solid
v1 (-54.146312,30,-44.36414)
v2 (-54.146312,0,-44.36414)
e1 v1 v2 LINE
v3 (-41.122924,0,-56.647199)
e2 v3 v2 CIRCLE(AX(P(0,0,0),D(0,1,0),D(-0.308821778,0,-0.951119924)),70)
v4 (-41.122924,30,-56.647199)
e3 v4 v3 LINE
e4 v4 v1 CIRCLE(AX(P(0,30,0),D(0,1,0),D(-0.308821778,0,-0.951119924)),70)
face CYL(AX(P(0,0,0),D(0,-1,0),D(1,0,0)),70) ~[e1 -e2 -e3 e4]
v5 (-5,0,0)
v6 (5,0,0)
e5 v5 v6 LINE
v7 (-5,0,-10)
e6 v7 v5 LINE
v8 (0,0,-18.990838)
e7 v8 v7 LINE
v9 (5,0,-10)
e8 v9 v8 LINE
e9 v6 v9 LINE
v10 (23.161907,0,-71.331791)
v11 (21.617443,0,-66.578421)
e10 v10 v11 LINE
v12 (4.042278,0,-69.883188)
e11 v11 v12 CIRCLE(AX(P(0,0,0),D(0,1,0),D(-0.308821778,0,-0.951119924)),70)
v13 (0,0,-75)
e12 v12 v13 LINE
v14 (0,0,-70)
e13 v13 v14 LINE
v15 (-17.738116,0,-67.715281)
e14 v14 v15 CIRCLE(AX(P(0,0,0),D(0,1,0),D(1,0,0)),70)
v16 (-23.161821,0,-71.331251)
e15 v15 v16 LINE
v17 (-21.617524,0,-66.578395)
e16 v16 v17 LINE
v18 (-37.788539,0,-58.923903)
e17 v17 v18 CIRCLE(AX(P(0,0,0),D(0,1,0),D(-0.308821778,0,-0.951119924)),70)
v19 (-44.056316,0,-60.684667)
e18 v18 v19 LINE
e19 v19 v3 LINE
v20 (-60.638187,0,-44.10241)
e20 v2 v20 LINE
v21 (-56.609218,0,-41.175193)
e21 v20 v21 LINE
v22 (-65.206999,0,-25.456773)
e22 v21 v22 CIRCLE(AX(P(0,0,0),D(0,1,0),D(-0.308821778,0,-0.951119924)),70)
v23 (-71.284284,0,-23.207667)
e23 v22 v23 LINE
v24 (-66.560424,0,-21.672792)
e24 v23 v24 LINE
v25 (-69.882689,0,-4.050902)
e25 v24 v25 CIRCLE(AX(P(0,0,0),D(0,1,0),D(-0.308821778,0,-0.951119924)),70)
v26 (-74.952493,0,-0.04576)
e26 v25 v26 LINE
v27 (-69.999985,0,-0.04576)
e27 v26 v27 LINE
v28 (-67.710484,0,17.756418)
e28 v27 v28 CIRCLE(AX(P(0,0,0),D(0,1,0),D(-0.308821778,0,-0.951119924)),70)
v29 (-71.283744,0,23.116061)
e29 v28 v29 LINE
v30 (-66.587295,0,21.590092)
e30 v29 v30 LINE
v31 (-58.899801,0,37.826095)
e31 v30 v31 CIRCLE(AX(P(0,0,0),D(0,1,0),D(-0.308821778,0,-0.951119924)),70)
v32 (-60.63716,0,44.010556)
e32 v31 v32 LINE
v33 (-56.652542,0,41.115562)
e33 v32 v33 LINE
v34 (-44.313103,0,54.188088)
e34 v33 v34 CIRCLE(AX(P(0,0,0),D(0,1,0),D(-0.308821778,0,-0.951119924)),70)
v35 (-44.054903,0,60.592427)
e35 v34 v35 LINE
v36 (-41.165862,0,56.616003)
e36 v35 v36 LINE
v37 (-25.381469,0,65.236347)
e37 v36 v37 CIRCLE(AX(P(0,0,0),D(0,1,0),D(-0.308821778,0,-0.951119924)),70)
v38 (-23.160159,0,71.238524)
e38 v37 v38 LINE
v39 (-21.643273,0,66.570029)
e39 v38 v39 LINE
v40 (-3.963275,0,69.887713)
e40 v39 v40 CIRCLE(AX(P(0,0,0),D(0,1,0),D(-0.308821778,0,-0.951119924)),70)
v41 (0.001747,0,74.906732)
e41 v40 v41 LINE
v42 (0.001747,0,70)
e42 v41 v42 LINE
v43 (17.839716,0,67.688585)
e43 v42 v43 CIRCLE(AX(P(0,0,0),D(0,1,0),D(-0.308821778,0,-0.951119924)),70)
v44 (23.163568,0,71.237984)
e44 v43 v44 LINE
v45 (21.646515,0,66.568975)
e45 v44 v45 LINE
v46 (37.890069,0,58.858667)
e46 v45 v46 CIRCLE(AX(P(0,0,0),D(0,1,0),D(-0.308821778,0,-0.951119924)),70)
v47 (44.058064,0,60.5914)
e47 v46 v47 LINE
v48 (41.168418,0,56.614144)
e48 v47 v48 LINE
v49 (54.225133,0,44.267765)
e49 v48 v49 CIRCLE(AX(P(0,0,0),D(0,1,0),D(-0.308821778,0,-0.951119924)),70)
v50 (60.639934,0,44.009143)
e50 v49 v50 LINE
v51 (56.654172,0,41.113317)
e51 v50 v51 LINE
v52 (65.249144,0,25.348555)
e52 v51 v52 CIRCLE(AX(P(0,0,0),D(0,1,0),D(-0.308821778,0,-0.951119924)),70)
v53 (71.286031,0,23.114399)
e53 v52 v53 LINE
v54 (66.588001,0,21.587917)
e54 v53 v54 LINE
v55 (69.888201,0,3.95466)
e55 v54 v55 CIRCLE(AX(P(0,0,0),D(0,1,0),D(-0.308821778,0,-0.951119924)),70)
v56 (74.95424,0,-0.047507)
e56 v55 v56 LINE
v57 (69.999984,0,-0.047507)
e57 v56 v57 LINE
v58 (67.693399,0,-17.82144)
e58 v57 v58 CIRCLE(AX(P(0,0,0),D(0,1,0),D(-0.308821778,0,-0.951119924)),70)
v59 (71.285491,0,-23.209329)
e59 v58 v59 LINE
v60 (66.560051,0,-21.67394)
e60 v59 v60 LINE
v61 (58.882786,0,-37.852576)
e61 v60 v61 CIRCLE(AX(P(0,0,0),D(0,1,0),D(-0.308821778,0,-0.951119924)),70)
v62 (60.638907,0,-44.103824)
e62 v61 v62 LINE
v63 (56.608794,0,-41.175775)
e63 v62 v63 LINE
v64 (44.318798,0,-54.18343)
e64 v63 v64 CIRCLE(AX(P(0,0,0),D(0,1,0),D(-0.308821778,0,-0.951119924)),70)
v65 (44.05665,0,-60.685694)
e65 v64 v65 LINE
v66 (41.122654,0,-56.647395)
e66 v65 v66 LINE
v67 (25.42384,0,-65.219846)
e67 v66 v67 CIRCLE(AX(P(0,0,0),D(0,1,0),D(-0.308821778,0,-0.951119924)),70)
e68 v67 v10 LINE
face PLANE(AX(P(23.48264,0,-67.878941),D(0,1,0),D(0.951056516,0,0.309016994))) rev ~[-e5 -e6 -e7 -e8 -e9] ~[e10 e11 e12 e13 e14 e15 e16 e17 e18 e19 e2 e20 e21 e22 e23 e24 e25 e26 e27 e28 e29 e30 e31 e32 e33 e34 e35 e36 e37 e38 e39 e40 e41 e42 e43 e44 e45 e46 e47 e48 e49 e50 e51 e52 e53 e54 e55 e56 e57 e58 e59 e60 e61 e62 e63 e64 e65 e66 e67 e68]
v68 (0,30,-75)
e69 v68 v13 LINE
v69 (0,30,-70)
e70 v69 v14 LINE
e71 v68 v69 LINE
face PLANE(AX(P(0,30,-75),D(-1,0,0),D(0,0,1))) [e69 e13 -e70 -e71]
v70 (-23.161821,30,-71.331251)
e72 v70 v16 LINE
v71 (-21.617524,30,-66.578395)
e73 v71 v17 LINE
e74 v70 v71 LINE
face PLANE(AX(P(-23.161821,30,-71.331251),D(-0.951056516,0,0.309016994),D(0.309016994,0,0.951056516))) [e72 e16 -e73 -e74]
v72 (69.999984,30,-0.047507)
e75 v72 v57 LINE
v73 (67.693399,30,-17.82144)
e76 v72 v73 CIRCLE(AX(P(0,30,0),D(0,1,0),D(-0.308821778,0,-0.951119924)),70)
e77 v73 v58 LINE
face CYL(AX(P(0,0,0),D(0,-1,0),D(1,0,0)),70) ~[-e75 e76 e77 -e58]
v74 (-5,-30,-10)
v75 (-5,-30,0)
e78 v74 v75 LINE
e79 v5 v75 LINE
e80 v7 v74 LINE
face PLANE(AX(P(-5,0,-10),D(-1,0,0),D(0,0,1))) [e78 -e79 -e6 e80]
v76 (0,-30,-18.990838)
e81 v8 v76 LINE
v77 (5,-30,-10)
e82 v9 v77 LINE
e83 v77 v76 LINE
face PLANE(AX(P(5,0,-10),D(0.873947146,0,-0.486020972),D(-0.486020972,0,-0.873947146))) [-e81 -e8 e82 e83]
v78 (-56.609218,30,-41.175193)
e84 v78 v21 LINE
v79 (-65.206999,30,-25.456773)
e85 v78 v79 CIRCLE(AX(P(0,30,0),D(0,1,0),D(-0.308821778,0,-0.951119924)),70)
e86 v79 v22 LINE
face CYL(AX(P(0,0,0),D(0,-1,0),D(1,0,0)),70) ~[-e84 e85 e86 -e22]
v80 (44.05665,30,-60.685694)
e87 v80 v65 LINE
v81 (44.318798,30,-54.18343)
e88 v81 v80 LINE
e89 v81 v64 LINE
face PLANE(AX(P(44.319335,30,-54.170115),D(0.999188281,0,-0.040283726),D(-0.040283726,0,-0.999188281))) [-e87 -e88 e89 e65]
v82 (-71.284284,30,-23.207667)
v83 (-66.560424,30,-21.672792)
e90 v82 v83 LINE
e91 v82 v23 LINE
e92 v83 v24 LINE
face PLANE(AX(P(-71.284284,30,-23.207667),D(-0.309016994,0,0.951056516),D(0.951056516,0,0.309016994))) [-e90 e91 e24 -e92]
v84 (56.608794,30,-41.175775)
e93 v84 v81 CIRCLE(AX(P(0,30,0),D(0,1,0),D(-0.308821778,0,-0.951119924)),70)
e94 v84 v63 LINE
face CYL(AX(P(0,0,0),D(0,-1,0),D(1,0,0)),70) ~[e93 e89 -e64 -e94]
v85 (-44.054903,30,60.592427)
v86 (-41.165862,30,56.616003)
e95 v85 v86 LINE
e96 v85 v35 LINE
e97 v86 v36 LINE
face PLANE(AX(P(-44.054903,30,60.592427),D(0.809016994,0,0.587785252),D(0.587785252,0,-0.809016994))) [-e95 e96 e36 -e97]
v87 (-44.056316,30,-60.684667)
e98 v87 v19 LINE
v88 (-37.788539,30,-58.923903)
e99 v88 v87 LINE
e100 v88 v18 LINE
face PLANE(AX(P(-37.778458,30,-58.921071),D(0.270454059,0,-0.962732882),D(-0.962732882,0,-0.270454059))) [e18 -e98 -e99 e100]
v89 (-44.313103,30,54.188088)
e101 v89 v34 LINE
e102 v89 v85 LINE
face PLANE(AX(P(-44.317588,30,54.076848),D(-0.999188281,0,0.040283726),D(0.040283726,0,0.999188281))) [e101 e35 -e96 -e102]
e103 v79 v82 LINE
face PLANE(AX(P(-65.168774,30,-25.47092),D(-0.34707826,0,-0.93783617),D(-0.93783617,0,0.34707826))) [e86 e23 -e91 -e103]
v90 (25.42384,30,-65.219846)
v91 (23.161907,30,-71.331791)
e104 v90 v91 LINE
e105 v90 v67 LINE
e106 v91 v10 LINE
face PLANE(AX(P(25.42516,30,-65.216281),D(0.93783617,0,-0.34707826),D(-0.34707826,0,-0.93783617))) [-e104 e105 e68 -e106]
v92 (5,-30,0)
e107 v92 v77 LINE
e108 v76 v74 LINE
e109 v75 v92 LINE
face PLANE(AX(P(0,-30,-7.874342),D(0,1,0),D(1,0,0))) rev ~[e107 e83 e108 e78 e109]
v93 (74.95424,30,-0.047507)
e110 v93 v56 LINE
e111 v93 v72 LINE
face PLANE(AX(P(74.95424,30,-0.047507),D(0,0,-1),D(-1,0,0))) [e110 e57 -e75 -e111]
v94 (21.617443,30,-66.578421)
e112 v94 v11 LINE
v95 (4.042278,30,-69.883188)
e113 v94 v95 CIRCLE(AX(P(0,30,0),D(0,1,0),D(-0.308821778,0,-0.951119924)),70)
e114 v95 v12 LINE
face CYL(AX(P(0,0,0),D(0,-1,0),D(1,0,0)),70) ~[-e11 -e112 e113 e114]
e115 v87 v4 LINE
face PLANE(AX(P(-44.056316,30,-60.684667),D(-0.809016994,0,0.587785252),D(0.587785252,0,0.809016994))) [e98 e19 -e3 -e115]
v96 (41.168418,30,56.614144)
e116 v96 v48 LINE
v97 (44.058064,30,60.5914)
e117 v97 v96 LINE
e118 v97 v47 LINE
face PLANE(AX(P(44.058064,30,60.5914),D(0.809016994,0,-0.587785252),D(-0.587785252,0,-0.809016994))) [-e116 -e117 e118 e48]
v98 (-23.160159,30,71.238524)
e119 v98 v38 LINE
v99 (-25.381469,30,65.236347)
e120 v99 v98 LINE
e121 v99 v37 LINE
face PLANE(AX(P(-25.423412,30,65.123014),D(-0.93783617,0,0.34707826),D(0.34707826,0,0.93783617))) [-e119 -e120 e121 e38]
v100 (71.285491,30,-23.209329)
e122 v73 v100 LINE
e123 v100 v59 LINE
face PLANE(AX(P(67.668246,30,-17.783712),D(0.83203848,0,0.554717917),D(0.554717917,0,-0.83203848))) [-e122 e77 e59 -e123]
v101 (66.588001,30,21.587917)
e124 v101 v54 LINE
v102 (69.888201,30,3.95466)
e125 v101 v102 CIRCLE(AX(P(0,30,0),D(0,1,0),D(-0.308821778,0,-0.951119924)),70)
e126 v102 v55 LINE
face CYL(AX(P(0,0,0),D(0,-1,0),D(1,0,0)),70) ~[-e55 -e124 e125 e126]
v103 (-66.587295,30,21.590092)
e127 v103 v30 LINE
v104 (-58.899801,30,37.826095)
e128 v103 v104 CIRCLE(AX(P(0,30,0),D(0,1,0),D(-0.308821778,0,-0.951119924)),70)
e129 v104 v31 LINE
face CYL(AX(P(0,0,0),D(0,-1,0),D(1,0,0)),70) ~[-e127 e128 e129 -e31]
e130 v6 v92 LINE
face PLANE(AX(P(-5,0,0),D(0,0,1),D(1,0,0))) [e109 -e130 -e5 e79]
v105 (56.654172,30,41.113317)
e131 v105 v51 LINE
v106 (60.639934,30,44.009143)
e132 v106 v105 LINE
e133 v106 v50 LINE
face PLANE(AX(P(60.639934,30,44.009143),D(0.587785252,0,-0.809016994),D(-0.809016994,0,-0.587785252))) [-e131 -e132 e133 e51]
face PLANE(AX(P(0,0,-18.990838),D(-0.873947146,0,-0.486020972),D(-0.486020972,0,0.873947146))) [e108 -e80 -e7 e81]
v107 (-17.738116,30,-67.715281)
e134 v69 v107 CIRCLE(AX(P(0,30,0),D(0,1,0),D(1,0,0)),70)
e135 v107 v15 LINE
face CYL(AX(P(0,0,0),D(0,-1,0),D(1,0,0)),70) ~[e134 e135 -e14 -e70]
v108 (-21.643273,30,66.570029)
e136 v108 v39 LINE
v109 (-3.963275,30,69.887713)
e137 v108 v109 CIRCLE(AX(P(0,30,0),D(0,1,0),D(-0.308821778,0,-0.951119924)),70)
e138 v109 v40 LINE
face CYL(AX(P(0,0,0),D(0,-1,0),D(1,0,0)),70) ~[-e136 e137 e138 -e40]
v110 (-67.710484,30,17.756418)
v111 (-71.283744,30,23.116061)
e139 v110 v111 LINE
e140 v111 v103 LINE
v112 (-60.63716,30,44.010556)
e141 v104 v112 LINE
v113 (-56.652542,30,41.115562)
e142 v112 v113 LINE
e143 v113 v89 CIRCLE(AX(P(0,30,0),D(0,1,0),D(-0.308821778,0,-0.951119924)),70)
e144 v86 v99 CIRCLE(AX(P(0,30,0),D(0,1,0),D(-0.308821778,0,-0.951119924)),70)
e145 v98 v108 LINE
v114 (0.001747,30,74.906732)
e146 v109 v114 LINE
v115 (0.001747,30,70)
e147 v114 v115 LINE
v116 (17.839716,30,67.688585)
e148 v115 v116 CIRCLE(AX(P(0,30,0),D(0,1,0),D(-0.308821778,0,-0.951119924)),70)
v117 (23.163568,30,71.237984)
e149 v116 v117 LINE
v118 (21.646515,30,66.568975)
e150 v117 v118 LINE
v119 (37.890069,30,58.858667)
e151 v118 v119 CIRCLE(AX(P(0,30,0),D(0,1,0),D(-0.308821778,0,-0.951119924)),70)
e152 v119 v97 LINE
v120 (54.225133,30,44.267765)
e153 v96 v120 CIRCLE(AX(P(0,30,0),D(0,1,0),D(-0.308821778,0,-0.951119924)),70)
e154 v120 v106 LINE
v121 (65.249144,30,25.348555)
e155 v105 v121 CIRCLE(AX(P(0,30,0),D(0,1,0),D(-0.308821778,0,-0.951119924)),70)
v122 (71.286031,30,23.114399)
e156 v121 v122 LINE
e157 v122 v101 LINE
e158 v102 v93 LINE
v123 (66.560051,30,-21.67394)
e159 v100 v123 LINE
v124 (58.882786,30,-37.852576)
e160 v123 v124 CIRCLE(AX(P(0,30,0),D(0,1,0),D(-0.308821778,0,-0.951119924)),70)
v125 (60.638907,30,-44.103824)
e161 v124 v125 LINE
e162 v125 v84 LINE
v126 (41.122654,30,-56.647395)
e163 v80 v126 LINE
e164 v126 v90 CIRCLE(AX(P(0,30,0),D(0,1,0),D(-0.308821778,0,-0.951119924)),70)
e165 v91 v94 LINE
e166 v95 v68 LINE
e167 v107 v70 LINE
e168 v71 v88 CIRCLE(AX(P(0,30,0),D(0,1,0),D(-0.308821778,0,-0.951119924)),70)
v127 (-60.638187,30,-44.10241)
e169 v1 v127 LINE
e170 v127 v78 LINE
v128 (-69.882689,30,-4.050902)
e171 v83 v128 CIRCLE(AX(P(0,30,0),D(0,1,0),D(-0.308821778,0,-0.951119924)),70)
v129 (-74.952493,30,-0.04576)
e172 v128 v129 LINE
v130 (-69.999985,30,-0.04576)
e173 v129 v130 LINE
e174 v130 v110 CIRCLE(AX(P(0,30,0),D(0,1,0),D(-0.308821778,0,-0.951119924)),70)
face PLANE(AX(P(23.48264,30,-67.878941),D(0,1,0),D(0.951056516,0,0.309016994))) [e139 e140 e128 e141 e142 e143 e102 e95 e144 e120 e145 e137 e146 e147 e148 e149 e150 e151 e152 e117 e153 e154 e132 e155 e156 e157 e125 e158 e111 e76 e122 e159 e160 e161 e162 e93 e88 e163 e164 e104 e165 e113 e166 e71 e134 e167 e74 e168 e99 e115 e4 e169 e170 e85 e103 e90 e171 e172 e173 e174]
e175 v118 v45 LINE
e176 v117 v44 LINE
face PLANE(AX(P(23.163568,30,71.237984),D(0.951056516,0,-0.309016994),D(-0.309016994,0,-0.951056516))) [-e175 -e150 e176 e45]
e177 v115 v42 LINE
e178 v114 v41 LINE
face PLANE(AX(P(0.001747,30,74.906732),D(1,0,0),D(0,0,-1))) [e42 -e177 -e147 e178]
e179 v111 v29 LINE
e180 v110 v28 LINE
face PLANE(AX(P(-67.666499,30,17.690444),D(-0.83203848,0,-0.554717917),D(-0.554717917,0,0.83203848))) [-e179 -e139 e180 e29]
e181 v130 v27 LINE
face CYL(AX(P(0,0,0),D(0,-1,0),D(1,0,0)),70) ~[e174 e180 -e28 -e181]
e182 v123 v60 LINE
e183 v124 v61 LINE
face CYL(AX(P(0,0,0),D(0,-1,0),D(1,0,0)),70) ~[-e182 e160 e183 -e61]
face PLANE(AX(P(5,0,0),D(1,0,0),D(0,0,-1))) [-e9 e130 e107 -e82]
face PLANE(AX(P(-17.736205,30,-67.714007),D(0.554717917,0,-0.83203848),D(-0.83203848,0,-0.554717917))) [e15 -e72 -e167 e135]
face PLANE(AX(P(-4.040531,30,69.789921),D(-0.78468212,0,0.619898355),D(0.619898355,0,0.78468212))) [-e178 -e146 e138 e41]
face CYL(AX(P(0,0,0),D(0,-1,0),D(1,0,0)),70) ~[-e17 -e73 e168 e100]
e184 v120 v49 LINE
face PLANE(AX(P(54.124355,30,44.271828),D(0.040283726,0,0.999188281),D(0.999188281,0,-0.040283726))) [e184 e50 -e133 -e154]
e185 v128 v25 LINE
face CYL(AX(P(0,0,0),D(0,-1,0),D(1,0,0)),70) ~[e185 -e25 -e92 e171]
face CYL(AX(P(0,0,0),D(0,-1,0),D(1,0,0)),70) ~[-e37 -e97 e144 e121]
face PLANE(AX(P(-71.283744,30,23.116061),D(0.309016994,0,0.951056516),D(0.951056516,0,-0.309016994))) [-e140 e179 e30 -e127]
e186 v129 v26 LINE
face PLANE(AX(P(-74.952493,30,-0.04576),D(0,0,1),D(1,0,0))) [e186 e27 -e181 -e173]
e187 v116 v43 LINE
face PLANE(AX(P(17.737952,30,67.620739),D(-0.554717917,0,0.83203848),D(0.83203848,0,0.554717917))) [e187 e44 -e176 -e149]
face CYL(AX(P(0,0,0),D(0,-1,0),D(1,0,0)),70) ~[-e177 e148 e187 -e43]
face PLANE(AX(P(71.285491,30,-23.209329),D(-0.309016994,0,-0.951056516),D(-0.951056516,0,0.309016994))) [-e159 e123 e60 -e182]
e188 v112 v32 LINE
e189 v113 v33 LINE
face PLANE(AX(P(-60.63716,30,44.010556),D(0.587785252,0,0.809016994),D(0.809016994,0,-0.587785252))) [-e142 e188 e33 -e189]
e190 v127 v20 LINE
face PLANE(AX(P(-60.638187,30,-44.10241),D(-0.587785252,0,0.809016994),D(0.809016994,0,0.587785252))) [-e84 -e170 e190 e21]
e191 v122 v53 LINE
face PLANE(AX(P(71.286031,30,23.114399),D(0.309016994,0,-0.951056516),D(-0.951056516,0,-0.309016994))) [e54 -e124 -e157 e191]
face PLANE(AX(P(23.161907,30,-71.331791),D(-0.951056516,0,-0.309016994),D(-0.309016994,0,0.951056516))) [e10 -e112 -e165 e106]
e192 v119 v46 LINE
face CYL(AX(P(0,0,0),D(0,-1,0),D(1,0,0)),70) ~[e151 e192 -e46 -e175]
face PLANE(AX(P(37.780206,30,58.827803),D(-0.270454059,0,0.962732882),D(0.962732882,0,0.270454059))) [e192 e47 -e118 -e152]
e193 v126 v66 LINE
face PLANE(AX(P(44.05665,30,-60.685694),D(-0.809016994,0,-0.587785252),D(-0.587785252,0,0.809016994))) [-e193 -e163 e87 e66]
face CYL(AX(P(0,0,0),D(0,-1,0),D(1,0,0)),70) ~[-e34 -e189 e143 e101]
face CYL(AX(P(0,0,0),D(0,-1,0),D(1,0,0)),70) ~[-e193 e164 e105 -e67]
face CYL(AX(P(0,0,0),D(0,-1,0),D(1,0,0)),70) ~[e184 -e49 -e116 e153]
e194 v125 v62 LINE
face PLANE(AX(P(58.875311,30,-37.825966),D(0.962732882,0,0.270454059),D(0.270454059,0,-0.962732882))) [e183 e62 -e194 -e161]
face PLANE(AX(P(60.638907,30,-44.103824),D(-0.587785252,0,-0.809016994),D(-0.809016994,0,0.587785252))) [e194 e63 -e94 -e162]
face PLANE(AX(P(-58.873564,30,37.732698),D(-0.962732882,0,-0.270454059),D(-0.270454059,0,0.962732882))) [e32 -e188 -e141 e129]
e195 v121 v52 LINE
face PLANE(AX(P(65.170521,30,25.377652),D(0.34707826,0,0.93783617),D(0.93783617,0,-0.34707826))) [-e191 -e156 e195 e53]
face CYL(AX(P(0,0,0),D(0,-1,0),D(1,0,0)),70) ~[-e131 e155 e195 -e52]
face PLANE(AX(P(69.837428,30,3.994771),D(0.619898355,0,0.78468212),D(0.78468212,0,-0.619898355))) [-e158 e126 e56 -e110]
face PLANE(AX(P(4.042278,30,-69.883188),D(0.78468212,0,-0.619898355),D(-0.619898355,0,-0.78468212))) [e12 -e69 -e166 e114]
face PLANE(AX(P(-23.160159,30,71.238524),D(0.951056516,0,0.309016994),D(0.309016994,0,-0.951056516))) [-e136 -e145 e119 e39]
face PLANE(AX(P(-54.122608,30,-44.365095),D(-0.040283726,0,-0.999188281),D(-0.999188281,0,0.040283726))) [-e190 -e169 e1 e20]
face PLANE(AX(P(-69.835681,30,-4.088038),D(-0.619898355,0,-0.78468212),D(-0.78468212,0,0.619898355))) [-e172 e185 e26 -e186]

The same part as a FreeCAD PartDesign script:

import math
import FreeCAD as App
import Part
import Sketcher


def add_polygon(sketch, points):
    """Adds a closed chain of lines whose ends are joined by coincident constraints."""
    first, n = sketch.GeometryCount, len(points)
    for a, b in zip(points, points[1:] + points[:1]):
        sketch.addGeometry(Part.LineSegment(App.Vector(*a, 0), App.Vector(*b, 0)), False)
    for i in range(n):
        sketch.addConstraint(Sketcher.Constraint("Coincident", first + i, 2, first + (i + 1) % n, 1))

doc = App.newDocument("Part")
body = doc.addObject("PartDesign::Body", "Body")

# Sketch on XZ plane
sketch1 = doc.addObject("Sketcher::SketchObject", "Sketch")
body.addObject(sketch1)
sketch1.AttachmentSupport = (doc.XZ_Plane, [""])
sketch1.MapMode = "FlatFace"
sketch1.addGeometry(Part.Circle(App.Vector(0, 0, 0), App.Vector(0, 0, 1), 70), False)
sketch1.addConstraint(Sketcher.Constraint("Coincident", 0, 3, -1, 1))
sketch1.addConstraint(Sketcher.Constraint("Diameter", 0, 140.0))
pad1 = doc.addObject("PartDesign::Pad", "Pad")
body.addObject(pad1)
pad1.Profile = sketch1
pad1.Length = 30
pad1.Reversed = True

# Sketch on XZ plane
sketch2 = doc.addObject("Sketcher::SketchObject", "Sketch001")
body.addObject(sketch2)
sketch2.AttachmentSupport = (doc.XZ_Plane, [""])
sketch2.MapMode = "FlatFace"
add_polygon(sketch2, [(-5, 0), (5, 0), (5, -10), (0, -19), (-5, -10)])  # lines 0-4
sketch2.addConstraint(Sketcher.Constraint("Horizontal", 0))
sketch2.addConstraint(Sketcher.Constraint("Vertical", 1))
sketch2.addConstraint(Sketcher.Constraint("Vertical", 4))
sketch2.addConstraint(Sketcher.Constraint("Symmetric", 0, 2, 4, 2, -1, 1))
sketch2.addConstraint(Sketcher.Constraint("PointOnObject", 2, 2, -2))
sketch2.addConstraint(Sketcher.Constraint("Horizontal", 1, 2, 3, 2))
sketch2.addConstraint(Sketcher.Constraint("Equal", 0, 1))
sketch2.addConstraint(Sketcher.Constraint("DistanceX", 0, 1, 0, 2, 10.0))
sketch2.addConstraint(Sketcher.Constraint("Distance", 2, 10.287622))
pad2 = doc.addObject("PartDesign::Pad", "Pad001")
body.addObject(pad2)
pad2.Profile = sketch2
pad2.Length = 30

# Sketch on XZ plane
sketch3 = doc.addObject("Sketcher::SketchObject", "Sketch002")
body.addObject(sketch3)
sketch3.AttachmentSupport = (doc.XZ_Plane, [""])
sketch3.MapMode = "FlatFace"
sketch3.AttachmentOffset = App.Placement(App.Vector(0, 0, -30), App.Rotation())
sketch3.addGeometry(Part.LineSegment(App.Vector(0, -75, 0), App.Vector(0, -70, 0)), False)
sketch3.addGeometry(Part.ArcOfCircle(Part.Circle(App.Vector(0, 0, 0), App.Vector(0, 0, 1), 70), math.radians(-90), math.radians(-86.69)), False)
sketch3.addGeometry(Part.LineSegment(App.Vector(4, -69.9, 0), App.Vector(0, -75, 0)), False)
sketch3.addConstraint(Sketcher.Constraint("Coincident", 0, 2, 1, 1))
sketch3.addConstraint(Sketcher.Constraint("Coincident", 1, 2, 2, 1))
sketch3.addConstraint(Sketcher.Constraint("Coincident", 2, 2, 0, 1))
sketch3.addConstraint(Sketcher.Constraint("Vertical", 0))
sketch3.addConstraint(Sketcher.Constraint("Coincident", 1, 3, -1, 1))
sketch3.addConstraint(Sketcher.Constraint("PointOnObject", 0, 2, -2))
sketch3.addConstraint(Sketcher.Constraint("Radius", 1, 69.999999))
sketch3.addConstraint(Sketcher.Constraint("DistanceY", 0, 1, 0, 2, 5.0))
sketch3.addConstraint(Sketcher.Constraint("DistanceY", 1, 2, -1, 1, 69.883188))
pad3 = doc.addObject("PartDesign::Pad", "Pad002")
body.addObject(pad3)
pad3.Profile = sketch3
pad3.Length = 30
doc.recompute()

datumline = doc.addObject("PartDesign::Line", "DatumLine")
body.addObject(datumline)
datumline.Placement = App.Placement(App.Vector(0.000874, 0, -0.046634), App.Rotation(App.Vector(0, 0, 1), App.Vector(0, 1, 0)))
polarpattern = doc.addObject("PartDesign::PolarPattern", "PolarPattern")
body.addObject(polarpattern)
polarpattern.Originals = [pad3]
polarpattern.Axis = (datumline, [""])
polarpattern.Angle = 360
polarpattern.Occurrences = 20
body.Tip = polarpattern

doc.recompute()
